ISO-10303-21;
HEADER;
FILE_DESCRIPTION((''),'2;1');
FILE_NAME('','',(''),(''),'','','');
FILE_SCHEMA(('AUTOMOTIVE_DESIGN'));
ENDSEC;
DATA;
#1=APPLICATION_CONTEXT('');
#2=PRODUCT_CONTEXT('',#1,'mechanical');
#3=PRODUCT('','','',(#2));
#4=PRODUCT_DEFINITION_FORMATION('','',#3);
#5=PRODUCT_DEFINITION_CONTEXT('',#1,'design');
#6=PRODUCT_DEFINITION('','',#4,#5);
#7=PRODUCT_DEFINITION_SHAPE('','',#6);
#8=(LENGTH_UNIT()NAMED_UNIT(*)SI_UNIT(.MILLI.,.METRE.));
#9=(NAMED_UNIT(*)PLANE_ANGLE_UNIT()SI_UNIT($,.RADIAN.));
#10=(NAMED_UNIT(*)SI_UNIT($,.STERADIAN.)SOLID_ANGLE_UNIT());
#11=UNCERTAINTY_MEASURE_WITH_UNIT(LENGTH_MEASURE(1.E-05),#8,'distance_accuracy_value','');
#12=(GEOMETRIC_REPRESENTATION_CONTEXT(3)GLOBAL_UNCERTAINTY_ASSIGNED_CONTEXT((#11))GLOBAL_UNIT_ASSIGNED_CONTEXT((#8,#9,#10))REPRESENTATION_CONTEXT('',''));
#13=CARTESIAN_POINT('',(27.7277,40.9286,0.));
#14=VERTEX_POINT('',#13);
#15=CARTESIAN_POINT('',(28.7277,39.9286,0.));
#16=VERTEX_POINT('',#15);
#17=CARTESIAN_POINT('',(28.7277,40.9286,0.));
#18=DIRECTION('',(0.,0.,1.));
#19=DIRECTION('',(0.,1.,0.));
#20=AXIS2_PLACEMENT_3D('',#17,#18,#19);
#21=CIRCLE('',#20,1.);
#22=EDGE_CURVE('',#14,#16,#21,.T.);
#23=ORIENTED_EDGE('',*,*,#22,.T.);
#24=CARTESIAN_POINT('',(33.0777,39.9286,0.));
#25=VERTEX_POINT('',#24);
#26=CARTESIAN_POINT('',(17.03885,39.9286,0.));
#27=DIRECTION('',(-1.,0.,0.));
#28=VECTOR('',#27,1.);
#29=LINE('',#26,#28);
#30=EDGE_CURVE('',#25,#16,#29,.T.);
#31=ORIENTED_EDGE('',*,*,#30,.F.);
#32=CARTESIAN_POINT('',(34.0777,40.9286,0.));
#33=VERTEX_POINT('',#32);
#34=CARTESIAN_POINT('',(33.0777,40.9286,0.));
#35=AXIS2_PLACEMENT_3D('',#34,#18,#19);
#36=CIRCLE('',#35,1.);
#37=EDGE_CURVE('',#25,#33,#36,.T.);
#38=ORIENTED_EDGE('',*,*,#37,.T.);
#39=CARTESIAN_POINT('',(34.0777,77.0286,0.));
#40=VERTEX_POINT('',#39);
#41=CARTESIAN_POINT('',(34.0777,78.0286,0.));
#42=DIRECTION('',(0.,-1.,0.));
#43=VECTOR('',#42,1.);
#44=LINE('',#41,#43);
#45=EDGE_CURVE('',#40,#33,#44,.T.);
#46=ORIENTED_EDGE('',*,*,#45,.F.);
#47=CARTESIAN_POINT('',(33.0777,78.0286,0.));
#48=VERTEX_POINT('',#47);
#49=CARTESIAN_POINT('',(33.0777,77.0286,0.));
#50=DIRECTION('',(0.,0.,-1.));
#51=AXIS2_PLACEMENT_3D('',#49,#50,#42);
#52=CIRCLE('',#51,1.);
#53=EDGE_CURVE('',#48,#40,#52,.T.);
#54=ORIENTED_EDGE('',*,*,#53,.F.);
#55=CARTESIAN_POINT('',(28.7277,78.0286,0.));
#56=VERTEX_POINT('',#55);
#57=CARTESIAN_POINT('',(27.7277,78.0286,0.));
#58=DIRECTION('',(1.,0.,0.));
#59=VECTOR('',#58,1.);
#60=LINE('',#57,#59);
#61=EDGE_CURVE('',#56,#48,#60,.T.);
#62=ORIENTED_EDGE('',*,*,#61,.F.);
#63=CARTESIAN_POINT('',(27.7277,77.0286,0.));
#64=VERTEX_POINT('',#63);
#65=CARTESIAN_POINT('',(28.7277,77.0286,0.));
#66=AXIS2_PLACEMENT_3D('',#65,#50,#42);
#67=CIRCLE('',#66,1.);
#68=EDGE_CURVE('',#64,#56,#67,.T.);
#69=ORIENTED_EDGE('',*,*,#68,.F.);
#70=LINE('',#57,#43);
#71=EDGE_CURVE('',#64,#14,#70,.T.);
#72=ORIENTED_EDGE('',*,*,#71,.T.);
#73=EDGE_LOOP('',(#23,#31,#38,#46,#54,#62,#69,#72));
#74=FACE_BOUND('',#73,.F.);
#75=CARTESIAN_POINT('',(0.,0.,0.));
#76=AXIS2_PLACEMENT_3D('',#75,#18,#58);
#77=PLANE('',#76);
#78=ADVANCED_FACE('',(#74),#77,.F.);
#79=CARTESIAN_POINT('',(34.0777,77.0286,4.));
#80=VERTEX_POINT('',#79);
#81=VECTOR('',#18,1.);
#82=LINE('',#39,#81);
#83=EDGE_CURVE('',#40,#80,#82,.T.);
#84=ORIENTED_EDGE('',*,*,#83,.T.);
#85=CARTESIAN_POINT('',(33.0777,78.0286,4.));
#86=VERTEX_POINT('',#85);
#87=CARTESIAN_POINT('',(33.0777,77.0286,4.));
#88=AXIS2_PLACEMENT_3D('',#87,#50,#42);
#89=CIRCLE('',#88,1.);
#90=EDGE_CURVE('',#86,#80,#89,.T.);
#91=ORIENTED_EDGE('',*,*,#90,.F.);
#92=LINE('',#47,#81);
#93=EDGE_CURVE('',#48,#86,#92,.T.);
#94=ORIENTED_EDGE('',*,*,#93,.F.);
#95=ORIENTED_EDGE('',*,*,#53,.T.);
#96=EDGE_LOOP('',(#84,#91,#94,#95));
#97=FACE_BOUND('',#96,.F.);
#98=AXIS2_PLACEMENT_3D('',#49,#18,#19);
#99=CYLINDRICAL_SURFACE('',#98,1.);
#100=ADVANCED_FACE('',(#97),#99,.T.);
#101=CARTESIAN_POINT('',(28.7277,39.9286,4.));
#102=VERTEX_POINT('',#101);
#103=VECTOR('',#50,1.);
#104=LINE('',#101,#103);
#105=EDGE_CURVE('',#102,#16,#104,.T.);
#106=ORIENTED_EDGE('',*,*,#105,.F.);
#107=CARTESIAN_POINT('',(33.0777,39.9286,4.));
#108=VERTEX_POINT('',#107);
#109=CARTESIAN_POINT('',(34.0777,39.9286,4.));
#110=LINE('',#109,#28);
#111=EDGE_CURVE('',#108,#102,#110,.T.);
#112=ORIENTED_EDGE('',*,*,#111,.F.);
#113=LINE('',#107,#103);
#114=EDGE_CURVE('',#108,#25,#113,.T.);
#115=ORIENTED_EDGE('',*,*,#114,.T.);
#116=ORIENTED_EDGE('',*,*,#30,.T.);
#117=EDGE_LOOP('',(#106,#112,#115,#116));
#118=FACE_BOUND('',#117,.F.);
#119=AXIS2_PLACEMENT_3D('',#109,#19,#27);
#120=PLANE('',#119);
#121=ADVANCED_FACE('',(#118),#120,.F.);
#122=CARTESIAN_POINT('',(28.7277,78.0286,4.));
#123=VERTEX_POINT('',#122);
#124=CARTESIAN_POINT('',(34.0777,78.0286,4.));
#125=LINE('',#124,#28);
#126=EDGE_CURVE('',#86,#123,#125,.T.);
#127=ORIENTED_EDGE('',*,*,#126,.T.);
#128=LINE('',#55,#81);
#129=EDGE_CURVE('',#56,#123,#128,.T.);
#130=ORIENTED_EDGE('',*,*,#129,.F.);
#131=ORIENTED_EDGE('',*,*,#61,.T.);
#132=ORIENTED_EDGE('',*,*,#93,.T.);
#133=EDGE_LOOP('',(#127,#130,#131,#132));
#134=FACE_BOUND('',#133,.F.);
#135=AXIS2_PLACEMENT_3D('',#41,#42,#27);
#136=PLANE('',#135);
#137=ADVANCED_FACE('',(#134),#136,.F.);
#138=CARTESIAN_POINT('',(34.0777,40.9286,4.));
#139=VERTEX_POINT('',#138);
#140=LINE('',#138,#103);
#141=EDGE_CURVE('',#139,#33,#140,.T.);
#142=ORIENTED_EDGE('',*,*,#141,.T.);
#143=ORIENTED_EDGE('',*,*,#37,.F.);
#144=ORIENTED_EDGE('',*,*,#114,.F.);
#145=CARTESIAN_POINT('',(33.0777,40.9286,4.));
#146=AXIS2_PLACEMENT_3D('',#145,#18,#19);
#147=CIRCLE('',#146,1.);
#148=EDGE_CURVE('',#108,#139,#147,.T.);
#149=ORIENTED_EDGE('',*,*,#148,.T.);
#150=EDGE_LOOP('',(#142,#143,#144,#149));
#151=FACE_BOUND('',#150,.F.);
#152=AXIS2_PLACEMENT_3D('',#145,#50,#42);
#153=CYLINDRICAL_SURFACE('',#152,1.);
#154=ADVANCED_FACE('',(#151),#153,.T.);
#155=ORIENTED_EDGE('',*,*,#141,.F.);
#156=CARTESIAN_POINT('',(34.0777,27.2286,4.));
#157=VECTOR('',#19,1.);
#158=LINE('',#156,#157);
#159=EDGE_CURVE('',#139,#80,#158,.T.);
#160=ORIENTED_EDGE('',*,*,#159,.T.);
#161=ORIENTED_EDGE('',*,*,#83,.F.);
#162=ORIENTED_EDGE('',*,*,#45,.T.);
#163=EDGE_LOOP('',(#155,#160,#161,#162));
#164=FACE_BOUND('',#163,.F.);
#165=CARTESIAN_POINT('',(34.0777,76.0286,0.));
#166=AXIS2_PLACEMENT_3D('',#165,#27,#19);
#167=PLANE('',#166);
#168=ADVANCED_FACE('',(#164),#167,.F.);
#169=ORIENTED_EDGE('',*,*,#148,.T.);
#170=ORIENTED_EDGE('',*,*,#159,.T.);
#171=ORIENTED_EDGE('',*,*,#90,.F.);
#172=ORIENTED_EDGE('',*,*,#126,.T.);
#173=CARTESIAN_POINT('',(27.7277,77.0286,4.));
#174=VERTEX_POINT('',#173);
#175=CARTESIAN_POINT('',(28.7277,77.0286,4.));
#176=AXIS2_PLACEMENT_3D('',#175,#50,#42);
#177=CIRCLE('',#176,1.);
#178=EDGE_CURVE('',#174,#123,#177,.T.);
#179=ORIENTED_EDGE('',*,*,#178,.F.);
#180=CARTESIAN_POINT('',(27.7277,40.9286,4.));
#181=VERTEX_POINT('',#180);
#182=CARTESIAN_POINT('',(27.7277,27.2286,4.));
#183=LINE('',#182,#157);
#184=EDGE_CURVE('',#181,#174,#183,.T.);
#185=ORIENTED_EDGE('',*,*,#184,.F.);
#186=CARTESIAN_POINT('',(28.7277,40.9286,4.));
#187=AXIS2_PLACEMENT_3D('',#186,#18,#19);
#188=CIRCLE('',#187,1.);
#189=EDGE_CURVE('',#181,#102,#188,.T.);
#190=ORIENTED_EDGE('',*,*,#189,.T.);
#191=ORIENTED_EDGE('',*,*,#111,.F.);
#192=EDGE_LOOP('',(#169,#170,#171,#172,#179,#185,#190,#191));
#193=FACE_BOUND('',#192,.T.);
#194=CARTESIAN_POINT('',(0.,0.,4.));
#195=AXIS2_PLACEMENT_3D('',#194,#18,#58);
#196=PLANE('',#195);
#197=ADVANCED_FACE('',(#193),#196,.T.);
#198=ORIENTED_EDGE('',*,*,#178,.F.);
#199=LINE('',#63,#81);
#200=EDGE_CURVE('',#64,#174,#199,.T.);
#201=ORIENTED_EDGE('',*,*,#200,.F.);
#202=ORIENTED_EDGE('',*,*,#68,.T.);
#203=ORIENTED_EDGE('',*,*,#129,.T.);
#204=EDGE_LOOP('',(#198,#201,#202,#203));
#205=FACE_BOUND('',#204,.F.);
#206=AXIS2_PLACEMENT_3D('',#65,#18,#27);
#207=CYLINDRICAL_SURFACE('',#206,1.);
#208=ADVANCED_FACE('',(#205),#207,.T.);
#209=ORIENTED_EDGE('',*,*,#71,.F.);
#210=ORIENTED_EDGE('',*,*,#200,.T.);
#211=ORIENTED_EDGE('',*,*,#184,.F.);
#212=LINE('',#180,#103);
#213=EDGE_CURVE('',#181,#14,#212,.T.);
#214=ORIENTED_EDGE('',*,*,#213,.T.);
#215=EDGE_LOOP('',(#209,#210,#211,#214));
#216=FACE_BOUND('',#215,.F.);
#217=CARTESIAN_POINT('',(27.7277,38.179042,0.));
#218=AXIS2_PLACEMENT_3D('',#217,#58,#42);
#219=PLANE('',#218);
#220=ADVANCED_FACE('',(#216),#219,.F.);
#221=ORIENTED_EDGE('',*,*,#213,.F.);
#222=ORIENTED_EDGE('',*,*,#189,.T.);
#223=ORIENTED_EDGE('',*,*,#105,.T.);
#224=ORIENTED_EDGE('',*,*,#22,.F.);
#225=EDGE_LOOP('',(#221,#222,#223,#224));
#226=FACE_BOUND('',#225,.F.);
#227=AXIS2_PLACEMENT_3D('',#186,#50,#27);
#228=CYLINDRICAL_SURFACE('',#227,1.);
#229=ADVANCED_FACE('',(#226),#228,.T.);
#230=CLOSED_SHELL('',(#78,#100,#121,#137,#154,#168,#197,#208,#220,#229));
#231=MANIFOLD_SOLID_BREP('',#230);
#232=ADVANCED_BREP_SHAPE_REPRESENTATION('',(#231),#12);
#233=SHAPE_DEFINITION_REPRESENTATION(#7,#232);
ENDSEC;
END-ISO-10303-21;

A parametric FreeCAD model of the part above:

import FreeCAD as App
import Part
import Sketcher
Q = App.Units.Quantity


def edges_at(feature, points):
    """Names of the edges that pass closest to the given points."""
    edges = feature.Shape.Edges
    near = lambda p: min(range(len(edges)), key=lambda i: edges[i].distToShape(Part.Vertex(*p))[0])
    return sorted({f"Edge{near(p) + 1}" for p in points})

doc = App.newDocument("Part")
body = doc.addObject("PartDesign::Body", "Body")

sketch1 = body.newObject("Sketcher::SketchObject", "Sketch")
sketch1.AttachmentSupport = (doc.getObject("XY_Plane"), [""])
sketch1.MapMode = "FlatFace"
sketch1.addGeometry(Part.LineSegment(App.Vector(28, 27, 0), App.Vector(34, 27, 0)), False)
sketch1.addGeometry(Part.LineSegment(App.Vector(34, 27, 0), App.Vector(34, 78, 0)), False)
sketch1.addGeometry(Part.LineSegment(App.Vector(34, 78, 0), App.Vector(28, 78, 0)), False)
sketch1.addGeometry(Part.LineSegment(App.Vector(28, 78, 0), App.Vector(28, 27, 0)), False)
sketch1.addConstraint(Sketcher.Constraint("Coincident", 0, 2, 1, 1))
sketch1.addConstraint(Sketcher.Constraint("Coincident", 1, 2, 2, 1))
sketch1.addConstraint(Sketcher.Constraint("Coincident", 2, 2, 3, 1))
sketch1.addConstraint(Sketcher.Constraint("Coincident", 3, 2, 0, 1))
sketch1.addConstraint(Sketcher.Constraint("Horizontal", 0))
sketch1.addConstraint(Sketcher.Constraint("Vertical", 1))
sketch1.addConstraint(Sketcher.Constraint("Horizontal", 2))
sketch1.addConstraint(Sketcher.Constraint("Vertical", 3))
sketch1.addConstraint(Sketcher.Constraint("DistanceY", 1, 1, 1, 2, Q("2 in")))
sketch1.addConstraint(Sketcher.Constraint("DistanceX", 0, 1, 0, 2, Q("0.25 in")))
sketch1.addConstraint(Sketcher.Constraint("DistanceY", -1, 1, 0, 2, Q("1.072 in")))
sketch1.addConstraint(Sketcher.Constraint("DistanceX", -1, 1, 0, 2, Q("34.0777 mm")))
pad1 = body.newObject("PartDesign::Pad", "Pad")
pad1.Profile = sketch1
pad1.Length = 4

sketch2 = body.newObject("Sketcher::SketchObject", "Sketch001")
sketch2.AttachmentSupport = (doc.getObject("XY_Plane"), [""])
sketch2.MapMode = "FlatFace"
sketch2.AttachmentOffset = App.Placement(App.Vector(0, 0, 4), App.Rotation())
sketch2.addGeometry(Part.LineSegment(App.Vector(28, 27, 0), App.Vector(34, 27, 0)), False)
sketch2.addGeometry(Part.LineSegment(App.Vector(34, 27, 0), App.Vector(34, 40, 0)), False)
sketch2.addGeometry(Part.LineSegment(App.Vector(34, 40, 0), App.Vector(28, 40, 0)), False)
sketch2.addGeometry(Part.LineSegment(App.Vector(28, 40, 0), App.Vector(28, 27, 0)), False)
sketch2.addConstraint(Sketcher.Constraint("Coincident", 0, 2, 1, 1))
sketch2.addConstraint(Sketcher.Constraint("Coincident", 1, 2, 2, 1))
sketch2.addConstraint(Sketcher.Constraint("Coincident", 2, 2, 3, 1))
sketch2.addConstraint(Sketcher.Constraint("Coincident", 3, 2, 0, 1))
sketch2.addConstraint(Sketcher.Constraint("Horizontal", 0))
sketch2.addConstraint(Sketcher.Constraint("Vertical", 1))
sketch2.addConstraint(Sketcher.Constraint("Horizontal", 2))
sketch2.addConstraint(Sketcher.Constraint("Vertical", 3))
sketch2.addConstraint(Sketcher.Constraint("DistanceY", 1, 1, 1, 2, Q("0.5 in")))
sketch2.addConstraint(Sketcher.Constraint("DistanceX", 0, 1, 0, 2, Q("0.25 in")))
sketch2.addConstraint(Sketcher.Constraint("DistanceY", -1, 1, 0, 2, Q("1.072 in")))
sketch2.addConstraint(Sketcher.Constraint("DistanceX", -1, 1, 0, 2, Q("34.0777 mm")))
pocket1 = body.newObject("PartDesign::Pocket", "Pocket")
pocket1.Profile = sketch2
pocket1.Length = Q("1 in")
doc.recompute()

fillet = body.newObject("PartDesign::Fillet", "Fillet")
fillet.Base = (pocket1, edges_at(pocket1, [
    (27.728, 39.929, 2),
    (34.078, 39.929, 2),
    (34.078, 78.029, 2),
    (27.728, 78.029, 2),
]))
fillet.Radius = 1

doc.recompute()
